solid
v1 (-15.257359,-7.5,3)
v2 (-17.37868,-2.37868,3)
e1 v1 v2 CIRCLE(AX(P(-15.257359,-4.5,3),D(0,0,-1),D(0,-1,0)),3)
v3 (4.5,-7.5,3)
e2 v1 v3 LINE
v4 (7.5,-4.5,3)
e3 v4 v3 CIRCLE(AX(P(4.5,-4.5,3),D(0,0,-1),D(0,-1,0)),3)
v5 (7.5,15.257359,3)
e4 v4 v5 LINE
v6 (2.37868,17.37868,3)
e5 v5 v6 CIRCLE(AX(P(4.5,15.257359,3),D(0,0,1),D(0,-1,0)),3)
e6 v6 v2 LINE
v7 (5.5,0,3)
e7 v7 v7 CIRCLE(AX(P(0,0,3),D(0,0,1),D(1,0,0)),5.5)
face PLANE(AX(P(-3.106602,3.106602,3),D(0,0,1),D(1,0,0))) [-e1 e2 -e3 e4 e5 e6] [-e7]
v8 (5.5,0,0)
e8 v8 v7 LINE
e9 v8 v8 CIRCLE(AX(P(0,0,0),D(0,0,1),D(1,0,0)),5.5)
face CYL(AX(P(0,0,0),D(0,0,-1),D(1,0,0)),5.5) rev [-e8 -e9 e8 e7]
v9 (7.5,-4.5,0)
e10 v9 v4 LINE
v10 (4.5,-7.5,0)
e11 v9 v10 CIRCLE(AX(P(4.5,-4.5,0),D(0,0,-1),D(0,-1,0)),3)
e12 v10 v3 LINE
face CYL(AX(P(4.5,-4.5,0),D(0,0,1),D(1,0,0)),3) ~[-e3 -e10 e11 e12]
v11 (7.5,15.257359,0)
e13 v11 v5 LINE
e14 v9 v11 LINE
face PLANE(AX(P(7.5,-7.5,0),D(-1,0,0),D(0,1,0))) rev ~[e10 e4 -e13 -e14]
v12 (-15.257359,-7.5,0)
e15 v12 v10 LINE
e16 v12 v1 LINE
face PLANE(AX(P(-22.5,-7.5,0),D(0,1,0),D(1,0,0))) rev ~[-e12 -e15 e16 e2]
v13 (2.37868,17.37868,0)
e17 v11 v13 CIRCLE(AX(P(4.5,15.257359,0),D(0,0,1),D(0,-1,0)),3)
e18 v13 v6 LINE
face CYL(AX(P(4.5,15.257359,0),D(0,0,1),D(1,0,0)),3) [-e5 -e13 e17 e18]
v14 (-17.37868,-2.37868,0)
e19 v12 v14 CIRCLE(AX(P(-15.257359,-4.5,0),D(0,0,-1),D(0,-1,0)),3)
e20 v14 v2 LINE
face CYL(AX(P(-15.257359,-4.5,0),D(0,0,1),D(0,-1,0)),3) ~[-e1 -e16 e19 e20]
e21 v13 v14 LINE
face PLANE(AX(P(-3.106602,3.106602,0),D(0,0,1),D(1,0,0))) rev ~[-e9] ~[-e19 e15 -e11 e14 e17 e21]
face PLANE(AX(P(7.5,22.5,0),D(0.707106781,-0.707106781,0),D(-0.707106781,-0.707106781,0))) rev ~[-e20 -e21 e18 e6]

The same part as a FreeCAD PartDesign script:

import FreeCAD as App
import Part
import Sketcher
from FreeCAD import Vector


def edges_at(feature, points):
    """Names of the edges that pass closest to the given points."""
    edges = feature.Shape.Edges
    near = lambda p: min(range(len(edges)), key=lambda i: edges[i].distToShape(Part.Vertex(*p))[0])
    return sorted({f"Edge{near(p) + 1}" for p in points})


def add_polygon(sketch, points):
    """Adds a closed chain of lines whose ends are joined by coincident constraints."""
    first, n = sketch.GeometryCount, len(points)
    for a, b in zip(points, points[1:] + points[:1]):
        sketch.addGeometry(Part.LineSegment(App.Vector(*a, 0), App.Vector(*b, 0)), False)
    for i in range(n):
        sketch.addConstraint(Sketcher.Constraint("Coincident", first + i, 2, first + (i + 1) % n, 1))

doc = App.newDocument("Part")
body = doc.addObject("PartDesign::Body", "Body")

sketch1 = doc.addObject("Sketcher::SketchObject", "Sketch")
body.addObject(sketch1)
sketch1.AttachmentSupport = (doc.XY_Plane, [""])
sketch1.MapMode = "FlatFace"
add_polygon(sketch1, [(8, -8), (8, 22), (-22, -8)])
sketch1.addGeometry(Part.Circle(Vector(0, 0, 0), Vector(0, 0, 1), 6), False)
sketch1.addConstraint(Sketcher.Constraint("Vertical", 0))
sketch1.addConstraint(Sketcher.Constraint("Horizontal", 2))
sketch1.addConstraint(Sketcher.Constraint("Coincident", 3, 3, -1, 1))
sketch1.addConstraint(Sketcher.Constraint("Equal", 2, 0))
sketch1.addConstraint(Sketcher.Constraint("Diameter", 3, 11.0))
sketch1.addConstraint(Sketcher.Constraint("DistanceX", 2, 1, 2, 2, 30.0))
sketch1.addConstraint(Sketcher.Constraint("DistanceX", -1, 1, 0, 2, 7.5))
sketch1.addConstraint(Sketcher.Constraint("DistanceY", -1, 1, 0, 2, 22.5))
pad1 = doc.addObject("PartDesign::Pad", "Pad")
body.addObject(pad1)
pad1.Profile = sketch1
pad1.Length = 3
doc.recompute()

fillet = doc.addObject("PartDesign::Fillet", "Fillet")
body.addObject(fillet)
fillet.Base = (pad1, edges_at(pad1, [(-22.5, -7.5, 1.5), (7.5, -7.5, 1.5), (7.5, 22.5, 1.5)]))
fillet.Radius = 3

doc.recompute()
